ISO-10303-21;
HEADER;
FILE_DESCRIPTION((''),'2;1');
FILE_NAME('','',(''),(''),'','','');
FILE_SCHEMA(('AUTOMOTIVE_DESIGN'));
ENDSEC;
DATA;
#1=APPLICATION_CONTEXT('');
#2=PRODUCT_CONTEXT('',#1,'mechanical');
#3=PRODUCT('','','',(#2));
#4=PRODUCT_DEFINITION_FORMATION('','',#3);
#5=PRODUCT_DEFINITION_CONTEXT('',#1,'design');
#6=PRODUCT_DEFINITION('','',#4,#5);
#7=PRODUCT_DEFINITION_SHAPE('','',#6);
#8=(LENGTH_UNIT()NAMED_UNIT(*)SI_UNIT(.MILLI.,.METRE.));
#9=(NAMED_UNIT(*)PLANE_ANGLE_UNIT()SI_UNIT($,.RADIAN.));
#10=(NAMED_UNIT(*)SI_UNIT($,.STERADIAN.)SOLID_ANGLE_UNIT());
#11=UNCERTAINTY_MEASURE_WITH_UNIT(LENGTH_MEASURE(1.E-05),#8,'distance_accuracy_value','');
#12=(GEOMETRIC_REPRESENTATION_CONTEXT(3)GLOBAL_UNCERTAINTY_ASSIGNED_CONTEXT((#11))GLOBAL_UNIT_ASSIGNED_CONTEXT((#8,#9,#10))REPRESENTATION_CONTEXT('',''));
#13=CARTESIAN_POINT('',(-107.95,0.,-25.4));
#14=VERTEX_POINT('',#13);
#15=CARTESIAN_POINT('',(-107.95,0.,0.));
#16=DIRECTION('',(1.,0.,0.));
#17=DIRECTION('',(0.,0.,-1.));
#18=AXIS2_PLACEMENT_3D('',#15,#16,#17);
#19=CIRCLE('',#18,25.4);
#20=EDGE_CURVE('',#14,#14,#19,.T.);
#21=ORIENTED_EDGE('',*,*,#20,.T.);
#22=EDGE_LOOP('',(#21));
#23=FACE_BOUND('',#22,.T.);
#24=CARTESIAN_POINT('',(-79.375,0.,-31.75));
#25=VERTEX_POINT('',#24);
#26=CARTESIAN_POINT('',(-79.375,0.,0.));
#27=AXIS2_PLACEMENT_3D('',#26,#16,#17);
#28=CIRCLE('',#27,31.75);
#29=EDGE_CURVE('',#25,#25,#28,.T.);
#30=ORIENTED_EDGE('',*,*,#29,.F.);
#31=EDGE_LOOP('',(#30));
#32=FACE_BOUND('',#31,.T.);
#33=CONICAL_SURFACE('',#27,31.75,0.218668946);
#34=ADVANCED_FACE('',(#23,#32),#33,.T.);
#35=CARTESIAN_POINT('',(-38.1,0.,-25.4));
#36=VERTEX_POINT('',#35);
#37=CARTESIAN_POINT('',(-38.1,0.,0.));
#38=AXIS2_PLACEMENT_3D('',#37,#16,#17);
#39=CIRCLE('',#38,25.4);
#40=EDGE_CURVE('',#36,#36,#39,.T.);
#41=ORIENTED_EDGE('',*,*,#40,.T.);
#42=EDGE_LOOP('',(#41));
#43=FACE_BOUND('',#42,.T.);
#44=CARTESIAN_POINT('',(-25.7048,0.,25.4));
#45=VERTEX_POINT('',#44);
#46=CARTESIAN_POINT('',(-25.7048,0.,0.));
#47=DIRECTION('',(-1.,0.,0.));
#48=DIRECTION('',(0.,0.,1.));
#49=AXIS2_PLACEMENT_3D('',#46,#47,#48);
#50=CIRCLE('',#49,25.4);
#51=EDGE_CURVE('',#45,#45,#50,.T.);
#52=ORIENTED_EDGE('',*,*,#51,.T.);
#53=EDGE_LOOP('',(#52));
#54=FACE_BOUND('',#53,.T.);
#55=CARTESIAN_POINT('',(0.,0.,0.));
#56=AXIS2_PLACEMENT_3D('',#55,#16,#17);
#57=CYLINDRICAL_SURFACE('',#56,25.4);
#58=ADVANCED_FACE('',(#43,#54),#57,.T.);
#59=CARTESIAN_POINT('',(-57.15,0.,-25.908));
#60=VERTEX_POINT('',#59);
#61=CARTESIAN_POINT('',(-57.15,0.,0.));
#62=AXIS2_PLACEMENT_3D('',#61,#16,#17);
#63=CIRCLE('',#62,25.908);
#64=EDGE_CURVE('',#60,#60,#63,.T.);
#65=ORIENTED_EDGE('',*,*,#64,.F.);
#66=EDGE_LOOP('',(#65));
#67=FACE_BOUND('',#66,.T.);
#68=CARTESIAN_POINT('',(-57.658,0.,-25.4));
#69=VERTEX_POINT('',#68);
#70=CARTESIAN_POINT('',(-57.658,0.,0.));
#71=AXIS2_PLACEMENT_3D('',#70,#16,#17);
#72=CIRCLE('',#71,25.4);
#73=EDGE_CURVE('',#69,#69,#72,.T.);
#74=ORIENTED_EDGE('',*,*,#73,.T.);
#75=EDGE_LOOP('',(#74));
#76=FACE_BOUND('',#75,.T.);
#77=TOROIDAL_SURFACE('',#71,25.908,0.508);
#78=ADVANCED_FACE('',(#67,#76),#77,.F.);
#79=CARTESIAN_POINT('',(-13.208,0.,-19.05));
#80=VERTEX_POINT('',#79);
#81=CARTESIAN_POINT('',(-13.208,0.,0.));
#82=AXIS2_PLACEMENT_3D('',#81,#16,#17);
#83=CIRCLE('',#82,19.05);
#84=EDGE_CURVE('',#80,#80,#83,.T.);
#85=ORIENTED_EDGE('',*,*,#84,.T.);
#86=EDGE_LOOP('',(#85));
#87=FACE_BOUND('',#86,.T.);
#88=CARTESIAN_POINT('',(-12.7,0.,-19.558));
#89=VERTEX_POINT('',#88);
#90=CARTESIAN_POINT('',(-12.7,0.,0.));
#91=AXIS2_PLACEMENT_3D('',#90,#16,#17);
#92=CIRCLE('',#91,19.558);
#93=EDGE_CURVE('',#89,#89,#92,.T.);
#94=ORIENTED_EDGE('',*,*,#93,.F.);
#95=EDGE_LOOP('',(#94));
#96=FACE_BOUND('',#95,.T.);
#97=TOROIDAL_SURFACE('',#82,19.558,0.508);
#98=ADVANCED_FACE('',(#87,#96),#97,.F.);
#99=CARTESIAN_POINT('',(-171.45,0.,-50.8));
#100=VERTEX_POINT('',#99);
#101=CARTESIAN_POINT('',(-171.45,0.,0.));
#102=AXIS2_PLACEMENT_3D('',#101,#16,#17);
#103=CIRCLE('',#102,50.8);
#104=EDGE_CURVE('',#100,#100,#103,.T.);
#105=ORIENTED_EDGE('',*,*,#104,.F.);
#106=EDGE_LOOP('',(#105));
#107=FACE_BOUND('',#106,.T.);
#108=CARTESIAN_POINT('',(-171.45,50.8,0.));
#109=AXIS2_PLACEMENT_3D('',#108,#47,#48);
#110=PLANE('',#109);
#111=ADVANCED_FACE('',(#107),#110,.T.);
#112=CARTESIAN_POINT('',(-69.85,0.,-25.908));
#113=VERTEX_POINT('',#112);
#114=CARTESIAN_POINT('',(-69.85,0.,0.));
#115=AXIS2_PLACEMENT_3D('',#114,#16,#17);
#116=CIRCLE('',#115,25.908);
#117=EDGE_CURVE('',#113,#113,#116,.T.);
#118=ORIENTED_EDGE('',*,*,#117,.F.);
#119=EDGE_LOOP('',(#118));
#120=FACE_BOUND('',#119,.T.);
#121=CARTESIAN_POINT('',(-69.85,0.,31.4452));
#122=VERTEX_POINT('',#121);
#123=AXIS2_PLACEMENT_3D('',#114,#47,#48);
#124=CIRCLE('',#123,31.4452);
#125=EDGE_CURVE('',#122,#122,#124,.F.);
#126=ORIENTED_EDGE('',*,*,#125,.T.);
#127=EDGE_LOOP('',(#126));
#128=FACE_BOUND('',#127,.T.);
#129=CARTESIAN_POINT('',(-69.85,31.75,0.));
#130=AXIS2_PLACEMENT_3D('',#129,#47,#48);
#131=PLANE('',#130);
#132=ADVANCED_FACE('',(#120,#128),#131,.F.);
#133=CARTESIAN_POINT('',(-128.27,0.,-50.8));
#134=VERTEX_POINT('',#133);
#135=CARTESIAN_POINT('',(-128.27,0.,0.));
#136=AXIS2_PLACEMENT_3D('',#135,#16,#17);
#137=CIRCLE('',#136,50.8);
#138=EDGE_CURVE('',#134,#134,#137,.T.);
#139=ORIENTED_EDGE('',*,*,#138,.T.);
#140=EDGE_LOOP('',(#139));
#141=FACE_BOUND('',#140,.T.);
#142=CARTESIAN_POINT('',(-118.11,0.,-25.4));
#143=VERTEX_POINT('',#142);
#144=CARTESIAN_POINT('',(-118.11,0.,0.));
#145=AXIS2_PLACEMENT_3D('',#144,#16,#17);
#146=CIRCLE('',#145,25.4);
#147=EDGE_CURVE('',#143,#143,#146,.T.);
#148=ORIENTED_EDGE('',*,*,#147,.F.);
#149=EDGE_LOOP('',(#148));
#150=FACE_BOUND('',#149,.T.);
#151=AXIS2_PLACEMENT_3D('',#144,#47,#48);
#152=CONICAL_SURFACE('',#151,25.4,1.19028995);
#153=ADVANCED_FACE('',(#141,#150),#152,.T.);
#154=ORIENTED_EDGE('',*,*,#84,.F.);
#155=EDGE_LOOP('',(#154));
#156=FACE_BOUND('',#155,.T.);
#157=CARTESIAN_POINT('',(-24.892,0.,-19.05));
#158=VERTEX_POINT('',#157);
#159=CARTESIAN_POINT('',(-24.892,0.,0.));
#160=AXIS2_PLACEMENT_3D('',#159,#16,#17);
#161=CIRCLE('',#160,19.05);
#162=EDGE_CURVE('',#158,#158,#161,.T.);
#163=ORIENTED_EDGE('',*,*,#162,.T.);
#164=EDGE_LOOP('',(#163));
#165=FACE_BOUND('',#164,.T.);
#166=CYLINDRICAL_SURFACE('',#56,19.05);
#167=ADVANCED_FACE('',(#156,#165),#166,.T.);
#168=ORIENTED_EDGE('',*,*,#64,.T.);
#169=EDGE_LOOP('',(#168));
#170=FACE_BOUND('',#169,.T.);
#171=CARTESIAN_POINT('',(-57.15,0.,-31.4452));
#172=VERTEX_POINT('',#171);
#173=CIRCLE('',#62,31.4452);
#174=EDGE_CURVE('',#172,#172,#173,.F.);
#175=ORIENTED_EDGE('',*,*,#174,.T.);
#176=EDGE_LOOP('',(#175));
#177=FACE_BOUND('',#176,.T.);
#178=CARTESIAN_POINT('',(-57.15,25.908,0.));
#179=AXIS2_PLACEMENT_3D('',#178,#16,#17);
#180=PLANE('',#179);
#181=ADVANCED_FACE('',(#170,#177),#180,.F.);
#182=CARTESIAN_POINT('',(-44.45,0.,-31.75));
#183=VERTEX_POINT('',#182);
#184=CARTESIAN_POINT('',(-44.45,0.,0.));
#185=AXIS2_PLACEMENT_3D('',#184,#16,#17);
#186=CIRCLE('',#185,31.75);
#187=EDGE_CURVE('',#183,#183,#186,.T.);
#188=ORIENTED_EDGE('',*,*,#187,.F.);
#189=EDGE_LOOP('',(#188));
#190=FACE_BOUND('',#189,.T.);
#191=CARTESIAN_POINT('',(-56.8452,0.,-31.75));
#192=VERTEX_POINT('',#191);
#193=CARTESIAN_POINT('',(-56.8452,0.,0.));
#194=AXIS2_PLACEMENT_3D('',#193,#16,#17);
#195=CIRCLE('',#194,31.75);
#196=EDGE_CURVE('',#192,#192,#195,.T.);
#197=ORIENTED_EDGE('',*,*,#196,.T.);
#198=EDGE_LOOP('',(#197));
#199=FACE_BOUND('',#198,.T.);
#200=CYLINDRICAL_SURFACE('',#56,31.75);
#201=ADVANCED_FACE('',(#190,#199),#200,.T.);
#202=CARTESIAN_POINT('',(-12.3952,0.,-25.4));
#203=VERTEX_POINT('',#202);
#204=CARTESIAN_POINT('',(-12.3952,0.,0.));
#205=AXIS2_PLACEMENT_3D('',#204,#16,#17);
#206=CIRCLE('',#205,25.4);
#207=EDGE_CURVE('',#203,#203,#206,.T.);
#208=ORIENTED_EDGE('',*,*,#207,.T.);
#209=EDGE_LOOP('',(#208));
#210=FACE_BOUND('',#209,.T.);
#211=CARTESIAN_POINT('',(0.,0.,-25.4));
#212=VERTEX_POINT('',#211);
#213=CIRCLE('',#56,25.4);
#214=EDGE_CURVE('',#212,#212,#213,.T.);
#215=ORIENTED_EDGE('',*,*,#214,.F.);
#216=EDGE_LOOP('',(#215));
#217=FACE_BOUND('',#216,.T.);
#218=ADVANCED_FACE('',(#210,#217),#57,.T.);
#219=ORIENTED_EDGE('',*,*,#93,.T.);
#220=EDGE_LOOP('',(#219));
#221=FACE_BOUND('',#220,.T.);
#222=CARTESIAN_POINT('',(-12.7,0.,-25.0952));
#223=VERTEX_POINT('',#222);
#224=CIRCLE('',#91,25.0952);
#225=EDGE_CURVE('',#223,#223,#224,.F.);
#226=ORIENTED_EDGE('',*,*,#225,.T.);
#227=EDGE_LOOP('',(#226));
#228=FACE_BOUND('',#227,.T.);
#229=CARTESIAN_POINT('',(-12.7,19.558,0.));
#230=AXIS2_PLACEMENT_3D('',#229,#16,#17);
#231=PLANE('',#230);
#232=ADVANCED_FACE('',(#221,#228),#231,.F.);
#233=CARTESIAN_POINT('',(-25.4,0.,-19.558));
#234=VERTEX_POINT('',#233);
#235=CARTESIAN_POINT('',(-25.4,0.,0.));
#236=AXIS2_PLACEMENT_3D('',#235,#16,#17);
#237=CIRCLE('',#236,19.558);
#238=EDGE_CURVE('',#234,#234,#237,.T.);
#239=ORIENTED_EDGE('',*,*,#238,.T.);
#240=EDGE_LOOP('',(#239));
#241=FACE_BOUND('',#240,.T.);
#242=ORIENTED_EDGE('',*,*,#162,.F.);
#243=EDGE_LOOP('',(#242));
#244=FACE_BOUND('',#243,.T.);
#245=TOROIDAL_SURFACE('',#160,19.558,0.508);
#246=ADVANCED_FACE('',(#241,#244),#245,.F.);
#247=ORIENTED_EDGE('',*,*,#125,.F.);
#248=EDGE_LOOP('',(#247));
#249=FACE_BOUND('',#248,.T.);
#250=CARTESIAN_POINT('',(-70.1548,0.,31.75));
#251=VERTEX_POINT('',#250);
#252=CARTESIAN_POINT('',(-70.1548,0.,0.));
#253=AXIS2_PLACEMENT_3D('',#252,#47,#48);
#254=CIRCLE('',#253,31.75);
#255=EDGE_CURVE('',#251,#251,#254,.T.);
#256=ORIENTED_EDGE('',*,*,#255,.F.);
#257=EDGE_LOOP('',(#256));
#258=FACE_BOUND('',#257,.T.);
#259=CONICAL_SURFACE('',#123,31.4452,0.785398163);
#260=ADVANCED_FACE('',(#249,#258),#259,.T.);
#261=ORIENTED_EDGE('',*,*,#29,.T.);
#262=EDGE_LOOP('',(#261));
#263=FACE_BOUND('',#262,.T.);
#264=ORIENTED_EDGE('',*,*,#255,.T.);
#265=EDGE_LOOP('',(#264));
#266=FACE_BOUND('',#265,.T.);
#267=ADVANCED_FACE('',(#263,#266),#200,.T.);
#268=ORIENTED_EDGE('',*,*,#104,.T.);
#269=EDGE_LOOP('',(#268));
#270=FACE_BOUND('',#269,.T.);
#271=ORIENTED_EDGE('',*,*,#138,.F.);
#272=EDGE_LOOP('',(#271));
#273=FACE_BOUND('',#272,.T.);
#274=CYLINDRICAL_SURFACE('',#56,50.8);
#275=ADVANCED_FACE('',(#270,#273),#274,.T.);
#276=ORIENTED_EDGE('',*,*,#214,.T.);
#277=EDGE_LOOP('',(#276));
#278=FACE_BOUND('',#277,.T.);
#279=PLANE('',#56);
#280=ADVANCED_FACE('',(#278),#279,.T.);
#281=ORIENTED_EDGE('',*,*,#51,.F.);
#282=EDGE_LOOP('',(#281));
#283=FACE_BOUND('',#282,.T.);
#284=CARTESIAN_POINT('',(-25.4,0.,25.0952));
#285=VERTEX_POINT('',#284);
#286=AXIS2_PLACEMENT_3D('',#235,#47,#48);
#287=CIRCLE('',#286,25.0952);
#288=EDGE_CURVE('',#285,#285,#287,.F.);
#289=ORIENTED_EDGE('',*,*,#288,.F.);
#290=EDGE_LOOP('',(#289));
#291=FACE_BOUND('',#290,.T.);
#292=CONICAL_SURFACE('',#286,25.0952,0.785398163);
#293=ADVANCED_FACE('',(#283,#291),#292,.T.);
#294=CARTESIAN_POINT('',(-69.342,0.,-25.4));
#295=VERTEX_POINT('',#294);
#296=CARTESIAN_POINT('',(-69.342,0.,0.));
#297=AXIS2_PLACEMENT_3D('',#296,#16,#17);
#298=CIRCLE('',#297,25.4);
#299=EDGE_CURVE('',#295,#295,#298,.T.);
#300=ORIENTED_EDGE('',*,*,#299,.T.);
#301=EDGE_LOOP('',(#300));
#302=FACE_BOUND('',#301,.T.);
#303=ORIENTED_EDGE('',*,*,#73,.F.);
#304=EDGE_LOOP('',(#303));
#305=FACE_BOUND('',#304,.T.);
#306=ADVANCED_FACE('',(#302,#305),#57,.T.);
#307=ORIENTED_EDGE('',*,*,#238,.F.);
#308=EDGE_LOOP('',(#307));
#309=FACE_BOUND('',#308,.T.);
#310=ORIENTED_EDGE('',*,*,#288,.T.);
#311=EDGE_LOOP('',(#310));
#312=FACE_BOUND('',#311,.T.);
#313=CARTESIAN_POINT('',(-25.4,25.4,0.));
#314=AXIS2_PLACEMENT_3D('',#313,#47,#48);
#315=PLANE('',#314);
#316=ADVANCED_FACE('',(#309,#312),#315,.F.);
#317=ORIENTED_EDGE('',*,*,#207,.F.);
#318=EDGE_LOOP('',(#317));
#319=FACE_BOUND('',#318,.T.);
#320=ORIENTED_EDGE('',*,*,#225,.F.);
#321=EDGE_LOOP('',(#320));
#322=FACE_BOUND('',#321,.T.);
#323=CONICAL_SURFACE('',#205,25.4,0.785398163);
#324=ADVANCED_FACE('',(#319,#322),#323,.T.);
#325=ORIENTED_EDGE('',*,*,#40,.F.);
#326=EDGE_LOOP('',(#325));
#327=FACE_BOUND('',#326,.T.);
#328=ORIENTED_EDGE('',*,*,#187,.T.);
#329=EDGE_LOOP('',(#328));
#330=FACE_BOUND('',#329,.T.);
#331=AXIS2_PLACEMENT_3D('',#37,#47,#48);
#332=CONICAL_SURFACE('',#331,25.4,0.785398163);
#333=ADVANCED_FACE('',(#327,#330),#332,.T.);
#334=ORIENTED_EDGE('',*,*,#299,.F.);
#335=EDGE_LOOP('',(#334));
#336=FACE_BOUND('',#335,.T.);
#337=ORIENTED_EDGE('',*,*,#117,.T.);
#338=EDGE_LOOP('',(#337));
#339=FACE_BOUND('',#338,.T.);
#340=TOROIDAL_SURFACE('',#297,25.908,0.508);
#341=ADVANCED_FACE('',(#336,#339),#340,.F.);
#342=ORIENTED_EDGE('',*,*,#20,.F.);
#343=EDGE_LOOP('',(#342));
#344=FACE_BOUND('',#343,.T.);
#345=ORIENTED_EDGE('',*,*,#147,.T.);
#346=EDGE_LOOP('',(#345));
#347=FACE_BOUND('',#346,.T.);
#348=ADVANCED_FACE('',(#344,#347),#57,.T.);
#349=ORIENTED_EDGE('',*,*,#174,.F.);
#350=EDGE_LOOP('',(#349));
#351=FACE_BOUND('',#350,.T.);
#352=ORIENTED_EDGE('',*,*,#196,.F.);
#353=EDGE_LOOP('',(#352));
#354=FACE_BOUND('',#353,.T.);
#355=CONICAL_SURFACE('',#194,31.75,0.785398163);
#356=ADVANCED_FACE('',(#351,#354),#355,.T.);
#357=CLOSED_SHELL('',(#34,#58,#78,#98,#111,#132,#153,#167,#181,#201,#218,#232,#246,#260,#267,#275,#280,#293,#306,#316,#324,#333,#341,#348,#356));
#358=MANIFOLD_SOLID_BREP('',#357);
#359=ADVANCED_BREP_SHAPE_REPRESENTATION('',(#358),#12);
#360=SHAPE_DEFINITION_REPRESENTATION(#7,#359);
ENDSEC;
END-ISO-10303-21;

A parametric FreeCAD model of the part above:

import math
import FreeCAD as App
import Part
import Sketcher
from FreeCAD import Vector
Q = App.Units.Quantity


def edges_at(feature, points):
    """Names of the edges that pass closest to the given points."""
    edges = feature.Shape.Edges
    near = lambda p: min(range(len(edges)), key=lambda i: edges[i].distToShape(Part.Vertex(*p))[0])
    return sorted({f"Edge{near(p) + 1}" for p in points})

doc = App.newDocument("Part")
body = doc.addObject("PartDesign::Body", "Body")

# Sketch on XY plane
sketch1 = body.newObject("Sketcher::SketchObject", "Sketch")
sketch1.AttachmentSupport = (doc.getObject("XY_Plane"), [""])
sketch1.MapMode = "FlatFace"
sketch1.addGeometry([
    Part.LineSegment(Vector(0, 0, 0), Vector(0, 25.4, 0)),  # 0
    Part.LineSegment(Vector(0, 25.4, 0), Vector(-12.7, 25.4, 0)),  # 1
    Part.LineSegment(Vector(-12.7, 25.4, 0), Vector(-12.7, 19.6, 0)),  # 2
    Part.ArcOfCircle(Part.Circle(Vector(-13.2, 19.6, 0), Vector(0, 0, 1), 0.5), math.radians(-90), math.radians(0)),  # 3
    Part.LineSegment(Vector(-13.2, 19.1, 0), Vector(-24.9, 19.1, 0)),  # 4
    Part.ArcOfCircle(Part.Circle(Vector(-24.9, 19.6, 0), Vector(0, 0, 1), 0.5), math.radians(180), math.radians(270)),  # 5
    Part.LineSegment(Vector(-25.4, 19.6, 0), Vector(-25.4, 25.4, 0)),  # 6
    Part.LineSegment(Vector(-25.4, 25.4, 0), Vector(-38.1, 25.4, 0)),  # 7
    Part.LineSegment(Vector(-38.1, 25.4, 0), Vector(-44.5, 31.8, 0)),  # 8
    Part.LineSegment(Vector(-44.5, 31.8, 0), Vector(-57.1, 31.8, 0)),  # 9
    Part.LineSegment(Vector(-57.1, 31.8, 0), Vector(-57.1, 25.9, 0)),  # 10
    Part.ArcOfCircle(Part.Circle(Vector(-57.7, 25.9, 0), Vector(0, 0, 1), 0.5), math.radians(-90), math.radians(0)),  # 11
    Part.LineSegment(Vector(-57.7, 25.4, 0), Vector(-69.3, 25.4, 0)),  # 12
    Part.ArcOfCircle(Part.Circle(Vector(-69.3, 25.9, 0), Vector(0, 0, 1), 0.5), math.radians(180), math.radians(270)),  # 13
    Part.LineSegment(Vector(-69.8, 25.9, 0), Vector(-69.8, 31.8, 0)),  # 14
    Part.LineSegment(Vector(-69.8, 31.8, 0), Vector(-79.4, 31.8, 0)),  # 15
    Part.LineSegment(Vector(-79.4, 31.8, 0), Vector(-108, 25.4, 0)),  # 16
    Part.LineSegment(Vector(-108, 25.4, 0), Vector(-118.1, 25.4, 0)),  # 17
    Part.LineSegment(Vector(-118.1, 25.4, 0), Vector(-128.3, 50.8, 0)),  # 18
    Part.LineSegment(Vector(-128.3, 50.8, 0), Vector(-171.4, 50.8, 0)),  # 19
    Part.LineSegment(Vector(-171.4, 50.8, 0), Vector(-171.4, 0, 0)),  # 20
    Part.LineSegment(Vector(-171.4, 0, 0), Vector(0, 0, 0)),  # 21
], False)
sketch1.addConstraint([
    Sketcher.Constraint("Coincident", 0, 2, 1, 1),
    Sketcher.Constraint("Coincident", 1, 2, 2, 1),
    Sketcher.Constraint("Tangent", 2, 2, 3, 2),
    Sketcher.Constraint("Tangent", 3, 1, 4, 1),
    Sketcher.Constraint("Tangent", 4, 2, 5, 2),
    Sketcher.Constraint("Tangent", 5, 1, 6, 1),
    Sketcher.Constraint("Coincident", 6, 2, 7, 1),
    Sketcher.Constraint("Coincident", 7, 2, 8, 1),
    Sketcher.Constraint("Coincident", 8, 2, 9, 1),
    Sketcher.Constraint("Coincident", 9, 2, 10, 1),
    Sketcher.Constraint("Tangent", 10, 2, 11, 2),
    Sketcher.Constraint("Tangent", 11, 1, 12, 1),
    Sketcher.Constraint("Tangent", 12, 2, 13, 2),
    Sketcher.Constraint("Tangent", 13, 1, 14, 1),
    Sketcher.Constraint("Coincident", 14, 2, 15, 1),
    Sketcher.Constraint("Coincident", 15, 2, 16, 1),
    Sketcher.Constraint("Coincident", 16, 2, 17, 1),
    Sketcher.Constraint("Coincident", 17, 2, 18, 1),
    Sketcher.Constraint("Coincident", 18, 2, 19, 1),
    Sketcher.Constraint("Coincident", 19, 2, 20, 1),
    Sketcher.Constraint("Coincident", 20, 2, 21, 1),
    Sketcher.Constraint("Coincident", 21, 2, 0, 1),
    Sketcher.Constraint("Vertical", 0),
    Sketcher.Constraint("Horizontal", 1),
    Sketcher.Constraint("Vertical", 2),
    Sketcher.Constraint("Horizontal", 4),
    Sketcher.Constraint("Vertical", 6),
    Sketcher.Constraint("Horizontal", 7),
    Sketcher.Constraint("Horizontal", 9),
    Sketcher.Constraint("Vertical", 10),
    Sketcher.Constraint("Horizontal", 12),
    Sketcher.Constraint("Vertical", 14),
    Sketcher.Constraint("Horizontal", 15),
    Sketcher.Constraint("Horizontal", 17),
    Sketcher.Constraint("Horizontal", 19),
    Sketcher.Constraint("Vertical", 20),
    Sketcher.Constraint("Horizontal", 21),
    Sketcher.Constraint("Coincident", 21, 2, -1, 1),
    Sketcher.Constraint("Equal", 3, 5),
    Sketcher.Constraint("Equal", 5, 11),
    Sketcher.Constraint("Equal", 11, 13),
    Sketcher.Constraint("Horizontal", 1, 2, 6, 2),
    Sketcher.Constraint("Horizontal", 7, 2, 11, 1),
    Sketcher.Constraint("Horizontal", 9, 2, 14, 2),
    Sketcher.Constraint("Horizontal", 12, 2, 16, 2),
    Sketcher.Constraint("Equal", 1, 7),
    Sketcher.Constraint("Equal", 7, 9),
    Sketcher.Constraint("Equal", 4, 12),
    Sketcher.Constraint("Equal", 6, 10),
    Sketcher.Constraint("DistanceY", 0, 1, 0, 2, Q("1 in")),
    Sketcher.Constraint("DistanceY", 20, 2, 20, 1, Q("2 in")),
    Sketcher.Constraint("Radius", 3, Q("0.02 in")),
    Sketcher.Constraint("DistanceX", 1, 2, 1, 1, Q("0.5 in")),
    Sketcher.Constraint("DistanceX", 17, 2, 17, 1, Q("0.4 in")),
    Sketcher.Constraint("DistanceX", 19, 2, 19, 1, Q("1.7 in")),
    Sketcher.Constraint("DistanceX", 5, 1, -1, 1, Q("1 in")),
    Sketcher.Constraint("Angle", 8, Q("135 deg")),
    Sketcher.Constraint("DistanceX", 19, 2, 14, 2, Q("4 in")),
    Sketcher.Constraint("DistanceX", 21, 1, 21, 2, Q("6.75 in")),
    Sketcher.Constraint("DistanceX", 16, 2, 13, 1, Q("1.5 in")),
    Sketcher.Constraint("DistanceX", 15, 2, 15, 1, Q("0.375 in")),
])
revolution = body.newObject("PartDesign::Revolution", "Revolution")
revolution.Profile = sketch1
revolution.ReferenceAxis = (sketch1, ["H_Axis"])
revolution.Angle = 360
doc.recompute()

chamfer = body.newObject("PartDesign::Chamfer", "Chamfer")
chamfer.Base = (revolution, edges_at(revolution, [
    (-12.7, 0, 25.4),
    (-25.4, 0, 25.4),
    (-57.15, 0, 31.75),
    (-69.85, 0, 31.75),
]))
chamfer.Size = Q("0.012 in")

doc.recompute()
